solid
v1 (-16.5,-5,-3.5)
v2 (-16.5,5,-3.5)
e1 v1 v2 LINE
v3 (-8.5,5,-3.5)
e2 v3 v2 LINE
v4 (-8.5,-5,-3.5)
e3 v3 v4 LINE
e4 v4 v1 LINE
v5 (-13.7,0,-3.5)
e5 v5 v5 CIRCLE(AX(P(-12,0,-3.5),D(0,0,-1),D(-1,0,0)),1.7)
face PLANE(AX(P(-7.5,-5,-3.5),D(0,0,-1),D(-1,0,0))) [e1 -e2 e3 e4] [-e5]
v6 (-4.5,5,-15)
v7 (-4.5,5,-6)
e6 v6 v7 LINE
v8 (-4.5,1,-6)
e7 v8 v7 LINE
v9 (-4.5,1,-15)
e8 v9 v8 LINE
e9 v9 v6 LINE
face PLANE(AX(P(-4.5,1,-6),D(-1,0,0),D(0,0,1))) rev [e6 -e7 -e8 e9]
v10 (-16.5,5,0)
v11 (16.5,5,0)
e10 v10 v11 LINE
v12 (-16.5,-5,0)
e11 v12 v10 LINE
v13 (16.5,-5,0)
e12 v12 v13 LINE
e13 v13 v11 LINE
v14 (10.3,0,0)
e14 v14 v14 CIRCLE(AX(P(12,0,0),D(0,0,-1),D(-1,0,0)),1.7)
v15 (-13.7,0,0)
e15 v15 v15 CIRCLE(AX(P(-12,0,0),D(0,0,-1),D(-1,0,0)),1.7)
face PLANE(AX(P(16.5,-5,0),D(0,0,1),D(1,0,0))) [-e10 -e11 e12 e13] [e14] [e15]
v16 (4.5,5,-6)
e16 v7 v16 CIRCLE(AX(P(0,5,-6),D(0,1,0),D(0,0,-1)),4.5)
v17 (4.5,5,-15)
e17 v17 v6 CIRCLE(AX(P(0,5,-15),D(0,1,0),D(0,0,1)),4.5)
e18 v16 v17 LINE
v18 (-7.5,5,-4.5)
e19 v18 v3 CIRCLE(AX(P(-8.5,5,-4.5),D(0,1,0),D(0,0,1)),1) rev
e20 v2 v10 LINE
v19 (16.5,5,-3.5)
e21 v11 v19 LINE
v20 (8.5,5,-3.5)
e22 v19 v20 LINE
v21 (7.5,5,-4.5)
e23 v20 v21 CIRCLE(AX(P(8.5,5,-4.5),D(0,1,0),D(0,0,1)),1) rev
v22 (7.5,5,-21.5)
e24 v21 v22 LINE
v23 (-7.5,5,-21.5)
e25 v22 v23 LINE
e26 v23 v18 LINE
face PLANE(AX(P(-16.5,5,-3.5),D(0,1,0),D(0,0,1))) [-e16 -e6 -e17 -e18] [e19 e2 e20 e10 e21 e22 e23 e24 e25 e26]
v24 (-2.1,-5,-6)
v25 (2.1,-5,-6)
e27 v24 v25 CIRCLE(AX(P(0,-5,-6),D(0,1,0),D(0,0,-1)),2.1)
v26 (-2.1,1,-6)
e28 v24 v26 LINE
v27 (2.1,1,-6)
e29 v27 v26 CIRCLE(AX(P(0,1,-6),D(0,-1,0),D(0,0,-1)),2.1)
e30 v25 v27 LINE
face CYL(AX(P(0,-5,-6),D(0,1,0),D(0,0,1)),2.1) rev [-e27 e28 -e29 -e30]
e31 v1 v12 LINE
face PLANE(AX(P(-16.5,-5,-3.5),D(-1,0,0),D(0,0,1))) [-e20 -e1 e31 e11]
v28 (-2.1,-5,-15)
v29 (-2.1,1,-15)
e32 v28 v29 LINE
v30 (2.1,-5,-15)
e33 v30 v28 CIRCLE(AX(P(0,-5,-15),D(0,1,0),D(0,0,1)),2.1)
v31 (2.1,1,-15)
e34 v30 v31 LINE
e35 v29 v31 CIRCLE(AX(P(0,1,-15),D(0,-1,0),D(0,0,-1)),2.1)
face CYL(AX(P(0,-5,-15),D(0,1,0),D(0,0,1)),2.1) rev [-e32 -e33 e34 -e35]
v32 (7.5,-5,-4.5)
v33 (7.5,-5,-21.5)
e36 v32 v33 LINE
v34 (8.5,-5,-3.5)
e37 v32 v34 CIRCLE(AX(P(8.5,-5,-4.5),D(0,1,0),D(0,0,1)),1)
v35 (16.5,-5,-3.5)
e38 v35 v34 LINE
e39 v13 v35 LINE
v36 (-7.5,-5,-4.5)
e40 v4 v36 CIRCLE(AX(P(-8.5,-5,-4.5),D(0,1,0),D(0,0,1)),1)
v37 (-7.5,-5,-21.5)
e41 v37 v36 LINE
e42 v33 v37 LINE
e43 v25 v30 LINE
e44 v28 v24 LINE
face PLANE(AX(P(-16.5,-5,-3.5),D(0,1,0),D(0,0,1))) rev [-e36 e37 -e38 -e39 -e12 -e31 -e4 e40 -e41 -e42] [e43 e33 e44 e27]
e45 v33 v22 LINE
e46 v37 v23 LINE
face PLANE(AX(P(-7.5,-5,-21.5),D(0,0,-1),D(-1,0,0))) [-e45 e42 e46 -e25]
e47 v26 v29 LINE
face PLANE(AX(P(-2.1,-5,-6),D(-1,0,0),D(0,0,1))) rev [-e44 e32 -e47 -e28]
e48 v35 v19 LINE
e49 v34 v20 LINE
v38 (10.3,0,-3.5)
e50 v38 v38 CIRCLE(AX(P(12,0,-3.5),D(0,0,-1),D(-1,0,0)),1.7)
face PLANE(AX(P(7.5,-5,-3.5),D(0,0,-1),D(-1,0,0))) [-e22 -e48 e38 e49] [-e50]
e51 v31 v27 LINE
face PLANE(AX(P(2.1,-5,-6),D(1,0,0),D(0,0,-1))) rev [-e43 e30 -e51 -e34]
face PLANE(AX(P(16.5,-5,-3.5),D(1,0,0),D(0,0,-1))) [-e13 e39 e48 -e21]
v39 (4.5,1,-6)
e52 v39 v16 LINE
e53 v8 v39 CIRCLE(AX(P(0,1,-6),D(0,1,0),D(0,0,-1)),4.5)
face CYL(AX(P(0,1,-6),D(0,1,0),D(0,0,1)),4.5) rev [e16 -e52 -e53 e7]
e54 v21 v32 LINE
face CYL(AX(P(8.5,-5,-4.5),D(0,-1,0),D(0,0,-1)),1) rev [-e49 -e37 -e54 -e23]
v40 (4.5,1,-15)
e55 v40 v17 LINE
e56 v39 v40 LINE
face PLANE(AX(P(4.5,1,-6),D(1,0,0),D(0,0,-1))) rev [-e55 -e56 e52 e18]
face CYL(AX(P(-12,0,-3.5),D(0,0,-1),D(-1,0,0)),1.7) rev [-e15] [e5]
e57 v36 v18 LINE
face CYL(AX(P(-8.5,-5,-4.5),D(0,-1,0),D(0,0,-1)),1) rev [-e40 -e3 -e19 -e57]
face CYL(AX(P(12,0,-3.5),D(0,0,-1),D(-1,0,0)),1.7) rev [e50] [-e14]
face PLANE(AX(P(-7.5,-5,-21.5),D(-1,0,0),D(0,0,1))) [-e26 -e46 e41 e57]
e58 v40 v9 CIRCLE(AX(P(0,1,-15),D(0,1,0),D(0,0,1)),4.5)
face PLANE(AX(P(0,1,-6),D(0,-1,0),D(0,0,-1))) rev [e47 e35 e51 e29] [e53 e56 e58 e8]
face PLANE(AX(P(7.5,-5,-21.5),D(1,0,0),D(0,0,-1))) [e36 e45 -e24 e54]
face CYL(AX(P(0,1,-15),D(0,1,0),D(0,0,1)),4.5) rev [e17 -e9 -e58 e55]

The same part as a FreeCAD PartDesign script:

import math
import FreeCAD as App
import Part
import Sketcher


def edges_at(feature, points):
    """Names of the edges that pass closest to the given points."""
    edges = feature.Shape.Edges
    near = lambda p: min(range(len(edges)), key=lambda i: edges[i].distToShape(Part.Vertex(*p))[0])
    return sorted({f"Edge{near(p) + 1}" for p in points})

doc = App.newDocument("Part")
params = doc.addObject("Spreadsheet::Sheet", "Params")
for row, (alias, value) in enumerate([
    ("sketch1_width", "15 mm"),
    ("sketch1_width2", "9 mm"),
    ("sketch1_height", "18 mm"),
    ("sketch1_height2", "3.5 mm"),
    ("pad1_length", "10 mm"),
    ("sketch2_radius", "4.5 mm"),
    ("sketch2_height", "9 mm"),
    ("pocket1_length", "4 mm"),
    ("sketch3_radius", "2.1 mm"),
    ("sketch3_height", "9 mm"),
    ("sketch4_diameter", "3.4 mm"),
    ("hole_diameter", "3.4 mm"),
    ("fillet_radius", "1 mm"),
], start=1):
    params.set(f"A{row}", alias)
    params.set(f"B{row}", "=" + value)
    params.setAlias(f"B{row}", alias)

body = doc.addObject("PartDesign::Body", "Body")

# Sketch on XZ plane
sketch1 = body.newObject("Sketcher::SketchObject", "Sketch")
sketch1.AttachmentSupport = (doc.getObject("XZ_Plane"), [""])
sketch1.MapMode = "FlatFace"
sketch1.addGeometry([
    Part.LineSegment(App.Vector(7.5, -21.5, 0), App.Vector(-7.5, -21.5, 0)),  # 0
    Part.LineSegment(App.Vector(-7.5, -21.5, 0), App.Vector(-7.5, -3.5, 0)),  # 1
    Part.LineSegment(App.Vector(-7.5, -3.5, 0), App.Vector(-16.5, -3.5, 0)),  # 2
    Part.LineSegment(App.Vector(-16.5, -3.5, 0), App.Vector(-16.5, 0, 0)),  # 3
    Part.LineSegment(App.Vector(-16.5, 0, 0), App.Vector(16.5, 0, 0)),  # 4
    Part.LineSegment(App.Vector(16.5, 0, 0), App.Vector(16.5, -3.5, 0)),  # 5
    Part.LineSegment(App.Vector(16.5, -3.5, 0), App.Vector(7.5, -3.5, 0)),  # 6
    Part.LineSegment(App.Vector(7.5, -3.5, 0), App.Vector(7.5, -21.5, 0)),  # 7
], False)
sketch1.addConstraint([
    Sketcher.Constraint("Coincident", 0, 2, 1, 1),
    Sketcher.Constraint("Coincident", 1, 2, 2, 1),
    Sketcher.Constraint("Coincident", 2, 2, 3, 1),
    Sketcher.Constraint("Coincident", 3, 2, 4, 1),
    Sketcher.Constraint("Coincident", 4, 2, 5, 1),
    Sketcher.Constraint("Coincident", 5, 2, 6, 1),
    Sketcher.Constraint("Coincident", 6, 2, 7, 1),
    Sketcher.Constraint("Coincident", 7, 2, 0, 1),
    Sketcher.Constraint("Horizontal", 0),
    Sketcher.Constraint("Vertical", 1),
    Sketcher.Constraint("Horizontal", 2),
    Sketcher.Constraint("Vertical", 3),
    Sketcher.Constraint("Horizontal", 4),
    Sketcher.Constraint("Vertical", 5),
    Sketcher.Constraint("Horizontal", 6),
    Sketcher.Constraint("Vertical", 7),
    Sketcher.Constraint("Symmetric", 3, 2, 4, 2, -1, 1),
    Sketcher.Constraint("Symmetric", 1, 2, 6, 2, -2),
    Sketcher.Constraint("DistanceX", 0, 2, 0, 1, 15.0),
    Sketcher.Constraint("DistanceX", 2, 2, 2, 1, 9.0),
    Sketcher.Constraint("DistanceY", 1, 1, 1, 2, 18.0),
    Sketcher.Constraint("DistanceY", 3, 1, 3, 2, 3.5),
])
sketch1.setExpression("Constraints[18]", "Params.sketch1_width")
sketch1.setExpression("Constraints[19]", "Params.sketch1_width2")
sketch1.setExpression("Constraints[20]", "Params.sketch1_height")
sketch1.setExpression("Constraints[21]", "Params.sketch1_height2")
pad1 = body.newObject("PartDesign::Pad", "Pad")
pad1.Profile = sketch1
pad1.setExpression("Length", "Params.pad1_length")
pad1.Midplane = True

# Sketch on XZ plane
sketch2 = body.newObject("Sketcher::SketchObject", "Sketch001")
sketch2.AttachmentSupport = (doc.getObject("XZ_Plane"), [""])
sketch2.MapMode = "FlatFace"
sketch2.AttachmentOffset = App.Placement(App.Vector(0, 0, -5), App.Rotation())
sketch2.addGeometry([
    Part.LineSegment(App.Vector(4.5, -6, 0), App.Vector(4.5, -15, 0)),
    Part.ArcOfCircle(Part.Circle(App.Vector(0, -15, 0), App.Vector(0, 0, 1), 4.5), math.radians(180), math.radians(360)),
    Part.LineSegment(App.Vector(-4.5, -15, 0), App.Vector(-4.5, -6, 0)),
    Part.ArcOfCircle(Part.Circle(App.Vector(0, -6, 0), App.Vector(0, 0, 1), 4.5), math.radians(0), math.radians(180)),
], False)
sketch2.addConstraint([
    Sketcher.Constraint("Tangent", 0, 2, 1, 2),
    Sketcher.Constraint("Tangent", 1, 1, 2, 1),
    Sketcher.Constraint("Tangent", 2, 2, 3, 2),
    Sketcher.Constraint("Tangent", 3, 1, 0, 1),
    Sketcher.Constraint("Vertical", 0),
    Sketcher.Constraint("Vertical", 2),
    Sketcher.Constraint("PointOnObject", 1, 3, -2),
    Sketcher.Constraint("Radius", 1, 4.5),
    Sketcher.Constraint("DistanceY", 0, 2, 0, 1, 9.0),
    Sketcher.Constraint("DistanceY", 1, 3, -1, 1, 15.0),
])
sketch2.setExpression("Constraints[7]", "Params.sketch2_radius")
sketch2.setExpression("Constraints[8]", "Params.sketch2_height")
pocket1 = body.newObject("PartDesign::Pocket", "Pocket")
pocket1.Profile = sketch2
pocket1.setExpression("Length", "Params.pocket1_length")
pocket1.Reversed = True

# Sketch on XZ plane
sketch3 = body.newObject("Sketcher::SketchObject", "Sketch002")
sketch3.AttachmentSupport = (doc.getObject("XZ_Plane"), [""])
sketch3.MapMode = "FlatFace"
sketch3.AttachmentOffset = App.Placement(App.Vector(0, 0, -5), App.Rotation())
sketch3.addGeometry([
    Part.LineSegment(App.Vector(2.1, -6, 0), App.Vector(2.1, -15, 0)),
    Part.ArcOfCircle(Part.Circle(App.Vector(0, -15, 0), App.Vector(0, 0, 1), 2.1), math.radians(180), math.radians(360)),
    Part.LineSegment(App.Vector(-2.1, -15, 0), App.Vector(-2.1, -6, 0)),
    Part.ArcOfCircle(Part.Circle(App.Vector(0, -6, 0), App.Vector(0, 0, 1), 2.1), math.radians(0), math.radians(180)),
], False)
sketch3.addConstraint([
    Sketcher.Constraint("Tangent", 0, 2, 1, 2),
    Sketcher.Constraint("Tangent", 1, 1, 2, 1),
    Sketcher.Constraint("Tangent", 2, 2, 3, 2),
    Sketcher.Constraint("Tangent", 3, 1, 0, 1),
    Sketcher.Constraint("Vertical", 0),
    Sketcher.Constraint("Vertical", 2),
    Sketcher.Constraint("PointOnObject", 1, 3, -2),
    Sketcher.Constraint("Radius", 1, 2.1),
    Sketcher.Constraint("DistanceY", 0, 2, 0, 1, 9.0),
    Sketcher.Constraint("DistanceY", 1, 3, -1, 1, 15.0),
])
sketch3.setExpression("Constraints[7]", "Params.sketch3_radius")
sketch3.setExpression("Constraints[8]", "Params.sketch3_height")
pocket2 = body.newObject("PartDesign::Pocket", "Pocket001")
pocket2.Profile = sketch3
pocket2.Type = "ThroughAll"
pocket2.Reversed = True

# Sketch on XY plane
sketch4 = body.newObject("Sketcher::SketchObject", "Sketch003")
sketch4.AttachmentSupport = (doc.getObject("XY_Plane"), [""])
sketch4.MapMode = "FlatFace"
sketch4.AttachmentOffset = App.Placement(App.Vector(0, 0, -3.5), App.Rotation())
sketch4.addGeometry([
    Part.Circle(App.Vector(12, 0, 0), App.Vector(0, 0, 1), 1.7),
    Part.Circle(App.Vector(-12, 0, 0), App.Vector(0, 0, 1), 1.7),
], False)
sketch4.addConstraint([
    Sketcher.Constraint("Equal", 0, 1),
    Sketcher.Constraint("Symmetric", 0, 3, 1, 3, -1, 1),
    Sketcher.Constraint("PointOnObject", 0, 3, -1),
    Sketcher.Constraint("Diameter", 0, 3.4),
    Sketcher.Constraint("DistanceX", -1, 1, 0, 3, 12.0),
])
sketch4.setExpression("Constraints[3]", "Params.sketch4_diameter")
doc.recompute()
hole = body.newObject("PartDesign::Hole", "Hole")
hole.Profile = sketch4
hole.ThreadType = "None"
hole.setExpression("Diameter", "Params.hole_diameter")
hole.DepthType = "ThroughAll"
hole.Reversed = True
doc.recompute()

fillet = body.newObject("PartDesign::Fillet", "Fillet")
fillet.Base = (hole, edges_at(hole, [(-7.5, 0, -3.5), (7.5, 0, -3.5)]))
fillet.setExpression("Radius", "Params.fillet_radius")

doc.recompute()
